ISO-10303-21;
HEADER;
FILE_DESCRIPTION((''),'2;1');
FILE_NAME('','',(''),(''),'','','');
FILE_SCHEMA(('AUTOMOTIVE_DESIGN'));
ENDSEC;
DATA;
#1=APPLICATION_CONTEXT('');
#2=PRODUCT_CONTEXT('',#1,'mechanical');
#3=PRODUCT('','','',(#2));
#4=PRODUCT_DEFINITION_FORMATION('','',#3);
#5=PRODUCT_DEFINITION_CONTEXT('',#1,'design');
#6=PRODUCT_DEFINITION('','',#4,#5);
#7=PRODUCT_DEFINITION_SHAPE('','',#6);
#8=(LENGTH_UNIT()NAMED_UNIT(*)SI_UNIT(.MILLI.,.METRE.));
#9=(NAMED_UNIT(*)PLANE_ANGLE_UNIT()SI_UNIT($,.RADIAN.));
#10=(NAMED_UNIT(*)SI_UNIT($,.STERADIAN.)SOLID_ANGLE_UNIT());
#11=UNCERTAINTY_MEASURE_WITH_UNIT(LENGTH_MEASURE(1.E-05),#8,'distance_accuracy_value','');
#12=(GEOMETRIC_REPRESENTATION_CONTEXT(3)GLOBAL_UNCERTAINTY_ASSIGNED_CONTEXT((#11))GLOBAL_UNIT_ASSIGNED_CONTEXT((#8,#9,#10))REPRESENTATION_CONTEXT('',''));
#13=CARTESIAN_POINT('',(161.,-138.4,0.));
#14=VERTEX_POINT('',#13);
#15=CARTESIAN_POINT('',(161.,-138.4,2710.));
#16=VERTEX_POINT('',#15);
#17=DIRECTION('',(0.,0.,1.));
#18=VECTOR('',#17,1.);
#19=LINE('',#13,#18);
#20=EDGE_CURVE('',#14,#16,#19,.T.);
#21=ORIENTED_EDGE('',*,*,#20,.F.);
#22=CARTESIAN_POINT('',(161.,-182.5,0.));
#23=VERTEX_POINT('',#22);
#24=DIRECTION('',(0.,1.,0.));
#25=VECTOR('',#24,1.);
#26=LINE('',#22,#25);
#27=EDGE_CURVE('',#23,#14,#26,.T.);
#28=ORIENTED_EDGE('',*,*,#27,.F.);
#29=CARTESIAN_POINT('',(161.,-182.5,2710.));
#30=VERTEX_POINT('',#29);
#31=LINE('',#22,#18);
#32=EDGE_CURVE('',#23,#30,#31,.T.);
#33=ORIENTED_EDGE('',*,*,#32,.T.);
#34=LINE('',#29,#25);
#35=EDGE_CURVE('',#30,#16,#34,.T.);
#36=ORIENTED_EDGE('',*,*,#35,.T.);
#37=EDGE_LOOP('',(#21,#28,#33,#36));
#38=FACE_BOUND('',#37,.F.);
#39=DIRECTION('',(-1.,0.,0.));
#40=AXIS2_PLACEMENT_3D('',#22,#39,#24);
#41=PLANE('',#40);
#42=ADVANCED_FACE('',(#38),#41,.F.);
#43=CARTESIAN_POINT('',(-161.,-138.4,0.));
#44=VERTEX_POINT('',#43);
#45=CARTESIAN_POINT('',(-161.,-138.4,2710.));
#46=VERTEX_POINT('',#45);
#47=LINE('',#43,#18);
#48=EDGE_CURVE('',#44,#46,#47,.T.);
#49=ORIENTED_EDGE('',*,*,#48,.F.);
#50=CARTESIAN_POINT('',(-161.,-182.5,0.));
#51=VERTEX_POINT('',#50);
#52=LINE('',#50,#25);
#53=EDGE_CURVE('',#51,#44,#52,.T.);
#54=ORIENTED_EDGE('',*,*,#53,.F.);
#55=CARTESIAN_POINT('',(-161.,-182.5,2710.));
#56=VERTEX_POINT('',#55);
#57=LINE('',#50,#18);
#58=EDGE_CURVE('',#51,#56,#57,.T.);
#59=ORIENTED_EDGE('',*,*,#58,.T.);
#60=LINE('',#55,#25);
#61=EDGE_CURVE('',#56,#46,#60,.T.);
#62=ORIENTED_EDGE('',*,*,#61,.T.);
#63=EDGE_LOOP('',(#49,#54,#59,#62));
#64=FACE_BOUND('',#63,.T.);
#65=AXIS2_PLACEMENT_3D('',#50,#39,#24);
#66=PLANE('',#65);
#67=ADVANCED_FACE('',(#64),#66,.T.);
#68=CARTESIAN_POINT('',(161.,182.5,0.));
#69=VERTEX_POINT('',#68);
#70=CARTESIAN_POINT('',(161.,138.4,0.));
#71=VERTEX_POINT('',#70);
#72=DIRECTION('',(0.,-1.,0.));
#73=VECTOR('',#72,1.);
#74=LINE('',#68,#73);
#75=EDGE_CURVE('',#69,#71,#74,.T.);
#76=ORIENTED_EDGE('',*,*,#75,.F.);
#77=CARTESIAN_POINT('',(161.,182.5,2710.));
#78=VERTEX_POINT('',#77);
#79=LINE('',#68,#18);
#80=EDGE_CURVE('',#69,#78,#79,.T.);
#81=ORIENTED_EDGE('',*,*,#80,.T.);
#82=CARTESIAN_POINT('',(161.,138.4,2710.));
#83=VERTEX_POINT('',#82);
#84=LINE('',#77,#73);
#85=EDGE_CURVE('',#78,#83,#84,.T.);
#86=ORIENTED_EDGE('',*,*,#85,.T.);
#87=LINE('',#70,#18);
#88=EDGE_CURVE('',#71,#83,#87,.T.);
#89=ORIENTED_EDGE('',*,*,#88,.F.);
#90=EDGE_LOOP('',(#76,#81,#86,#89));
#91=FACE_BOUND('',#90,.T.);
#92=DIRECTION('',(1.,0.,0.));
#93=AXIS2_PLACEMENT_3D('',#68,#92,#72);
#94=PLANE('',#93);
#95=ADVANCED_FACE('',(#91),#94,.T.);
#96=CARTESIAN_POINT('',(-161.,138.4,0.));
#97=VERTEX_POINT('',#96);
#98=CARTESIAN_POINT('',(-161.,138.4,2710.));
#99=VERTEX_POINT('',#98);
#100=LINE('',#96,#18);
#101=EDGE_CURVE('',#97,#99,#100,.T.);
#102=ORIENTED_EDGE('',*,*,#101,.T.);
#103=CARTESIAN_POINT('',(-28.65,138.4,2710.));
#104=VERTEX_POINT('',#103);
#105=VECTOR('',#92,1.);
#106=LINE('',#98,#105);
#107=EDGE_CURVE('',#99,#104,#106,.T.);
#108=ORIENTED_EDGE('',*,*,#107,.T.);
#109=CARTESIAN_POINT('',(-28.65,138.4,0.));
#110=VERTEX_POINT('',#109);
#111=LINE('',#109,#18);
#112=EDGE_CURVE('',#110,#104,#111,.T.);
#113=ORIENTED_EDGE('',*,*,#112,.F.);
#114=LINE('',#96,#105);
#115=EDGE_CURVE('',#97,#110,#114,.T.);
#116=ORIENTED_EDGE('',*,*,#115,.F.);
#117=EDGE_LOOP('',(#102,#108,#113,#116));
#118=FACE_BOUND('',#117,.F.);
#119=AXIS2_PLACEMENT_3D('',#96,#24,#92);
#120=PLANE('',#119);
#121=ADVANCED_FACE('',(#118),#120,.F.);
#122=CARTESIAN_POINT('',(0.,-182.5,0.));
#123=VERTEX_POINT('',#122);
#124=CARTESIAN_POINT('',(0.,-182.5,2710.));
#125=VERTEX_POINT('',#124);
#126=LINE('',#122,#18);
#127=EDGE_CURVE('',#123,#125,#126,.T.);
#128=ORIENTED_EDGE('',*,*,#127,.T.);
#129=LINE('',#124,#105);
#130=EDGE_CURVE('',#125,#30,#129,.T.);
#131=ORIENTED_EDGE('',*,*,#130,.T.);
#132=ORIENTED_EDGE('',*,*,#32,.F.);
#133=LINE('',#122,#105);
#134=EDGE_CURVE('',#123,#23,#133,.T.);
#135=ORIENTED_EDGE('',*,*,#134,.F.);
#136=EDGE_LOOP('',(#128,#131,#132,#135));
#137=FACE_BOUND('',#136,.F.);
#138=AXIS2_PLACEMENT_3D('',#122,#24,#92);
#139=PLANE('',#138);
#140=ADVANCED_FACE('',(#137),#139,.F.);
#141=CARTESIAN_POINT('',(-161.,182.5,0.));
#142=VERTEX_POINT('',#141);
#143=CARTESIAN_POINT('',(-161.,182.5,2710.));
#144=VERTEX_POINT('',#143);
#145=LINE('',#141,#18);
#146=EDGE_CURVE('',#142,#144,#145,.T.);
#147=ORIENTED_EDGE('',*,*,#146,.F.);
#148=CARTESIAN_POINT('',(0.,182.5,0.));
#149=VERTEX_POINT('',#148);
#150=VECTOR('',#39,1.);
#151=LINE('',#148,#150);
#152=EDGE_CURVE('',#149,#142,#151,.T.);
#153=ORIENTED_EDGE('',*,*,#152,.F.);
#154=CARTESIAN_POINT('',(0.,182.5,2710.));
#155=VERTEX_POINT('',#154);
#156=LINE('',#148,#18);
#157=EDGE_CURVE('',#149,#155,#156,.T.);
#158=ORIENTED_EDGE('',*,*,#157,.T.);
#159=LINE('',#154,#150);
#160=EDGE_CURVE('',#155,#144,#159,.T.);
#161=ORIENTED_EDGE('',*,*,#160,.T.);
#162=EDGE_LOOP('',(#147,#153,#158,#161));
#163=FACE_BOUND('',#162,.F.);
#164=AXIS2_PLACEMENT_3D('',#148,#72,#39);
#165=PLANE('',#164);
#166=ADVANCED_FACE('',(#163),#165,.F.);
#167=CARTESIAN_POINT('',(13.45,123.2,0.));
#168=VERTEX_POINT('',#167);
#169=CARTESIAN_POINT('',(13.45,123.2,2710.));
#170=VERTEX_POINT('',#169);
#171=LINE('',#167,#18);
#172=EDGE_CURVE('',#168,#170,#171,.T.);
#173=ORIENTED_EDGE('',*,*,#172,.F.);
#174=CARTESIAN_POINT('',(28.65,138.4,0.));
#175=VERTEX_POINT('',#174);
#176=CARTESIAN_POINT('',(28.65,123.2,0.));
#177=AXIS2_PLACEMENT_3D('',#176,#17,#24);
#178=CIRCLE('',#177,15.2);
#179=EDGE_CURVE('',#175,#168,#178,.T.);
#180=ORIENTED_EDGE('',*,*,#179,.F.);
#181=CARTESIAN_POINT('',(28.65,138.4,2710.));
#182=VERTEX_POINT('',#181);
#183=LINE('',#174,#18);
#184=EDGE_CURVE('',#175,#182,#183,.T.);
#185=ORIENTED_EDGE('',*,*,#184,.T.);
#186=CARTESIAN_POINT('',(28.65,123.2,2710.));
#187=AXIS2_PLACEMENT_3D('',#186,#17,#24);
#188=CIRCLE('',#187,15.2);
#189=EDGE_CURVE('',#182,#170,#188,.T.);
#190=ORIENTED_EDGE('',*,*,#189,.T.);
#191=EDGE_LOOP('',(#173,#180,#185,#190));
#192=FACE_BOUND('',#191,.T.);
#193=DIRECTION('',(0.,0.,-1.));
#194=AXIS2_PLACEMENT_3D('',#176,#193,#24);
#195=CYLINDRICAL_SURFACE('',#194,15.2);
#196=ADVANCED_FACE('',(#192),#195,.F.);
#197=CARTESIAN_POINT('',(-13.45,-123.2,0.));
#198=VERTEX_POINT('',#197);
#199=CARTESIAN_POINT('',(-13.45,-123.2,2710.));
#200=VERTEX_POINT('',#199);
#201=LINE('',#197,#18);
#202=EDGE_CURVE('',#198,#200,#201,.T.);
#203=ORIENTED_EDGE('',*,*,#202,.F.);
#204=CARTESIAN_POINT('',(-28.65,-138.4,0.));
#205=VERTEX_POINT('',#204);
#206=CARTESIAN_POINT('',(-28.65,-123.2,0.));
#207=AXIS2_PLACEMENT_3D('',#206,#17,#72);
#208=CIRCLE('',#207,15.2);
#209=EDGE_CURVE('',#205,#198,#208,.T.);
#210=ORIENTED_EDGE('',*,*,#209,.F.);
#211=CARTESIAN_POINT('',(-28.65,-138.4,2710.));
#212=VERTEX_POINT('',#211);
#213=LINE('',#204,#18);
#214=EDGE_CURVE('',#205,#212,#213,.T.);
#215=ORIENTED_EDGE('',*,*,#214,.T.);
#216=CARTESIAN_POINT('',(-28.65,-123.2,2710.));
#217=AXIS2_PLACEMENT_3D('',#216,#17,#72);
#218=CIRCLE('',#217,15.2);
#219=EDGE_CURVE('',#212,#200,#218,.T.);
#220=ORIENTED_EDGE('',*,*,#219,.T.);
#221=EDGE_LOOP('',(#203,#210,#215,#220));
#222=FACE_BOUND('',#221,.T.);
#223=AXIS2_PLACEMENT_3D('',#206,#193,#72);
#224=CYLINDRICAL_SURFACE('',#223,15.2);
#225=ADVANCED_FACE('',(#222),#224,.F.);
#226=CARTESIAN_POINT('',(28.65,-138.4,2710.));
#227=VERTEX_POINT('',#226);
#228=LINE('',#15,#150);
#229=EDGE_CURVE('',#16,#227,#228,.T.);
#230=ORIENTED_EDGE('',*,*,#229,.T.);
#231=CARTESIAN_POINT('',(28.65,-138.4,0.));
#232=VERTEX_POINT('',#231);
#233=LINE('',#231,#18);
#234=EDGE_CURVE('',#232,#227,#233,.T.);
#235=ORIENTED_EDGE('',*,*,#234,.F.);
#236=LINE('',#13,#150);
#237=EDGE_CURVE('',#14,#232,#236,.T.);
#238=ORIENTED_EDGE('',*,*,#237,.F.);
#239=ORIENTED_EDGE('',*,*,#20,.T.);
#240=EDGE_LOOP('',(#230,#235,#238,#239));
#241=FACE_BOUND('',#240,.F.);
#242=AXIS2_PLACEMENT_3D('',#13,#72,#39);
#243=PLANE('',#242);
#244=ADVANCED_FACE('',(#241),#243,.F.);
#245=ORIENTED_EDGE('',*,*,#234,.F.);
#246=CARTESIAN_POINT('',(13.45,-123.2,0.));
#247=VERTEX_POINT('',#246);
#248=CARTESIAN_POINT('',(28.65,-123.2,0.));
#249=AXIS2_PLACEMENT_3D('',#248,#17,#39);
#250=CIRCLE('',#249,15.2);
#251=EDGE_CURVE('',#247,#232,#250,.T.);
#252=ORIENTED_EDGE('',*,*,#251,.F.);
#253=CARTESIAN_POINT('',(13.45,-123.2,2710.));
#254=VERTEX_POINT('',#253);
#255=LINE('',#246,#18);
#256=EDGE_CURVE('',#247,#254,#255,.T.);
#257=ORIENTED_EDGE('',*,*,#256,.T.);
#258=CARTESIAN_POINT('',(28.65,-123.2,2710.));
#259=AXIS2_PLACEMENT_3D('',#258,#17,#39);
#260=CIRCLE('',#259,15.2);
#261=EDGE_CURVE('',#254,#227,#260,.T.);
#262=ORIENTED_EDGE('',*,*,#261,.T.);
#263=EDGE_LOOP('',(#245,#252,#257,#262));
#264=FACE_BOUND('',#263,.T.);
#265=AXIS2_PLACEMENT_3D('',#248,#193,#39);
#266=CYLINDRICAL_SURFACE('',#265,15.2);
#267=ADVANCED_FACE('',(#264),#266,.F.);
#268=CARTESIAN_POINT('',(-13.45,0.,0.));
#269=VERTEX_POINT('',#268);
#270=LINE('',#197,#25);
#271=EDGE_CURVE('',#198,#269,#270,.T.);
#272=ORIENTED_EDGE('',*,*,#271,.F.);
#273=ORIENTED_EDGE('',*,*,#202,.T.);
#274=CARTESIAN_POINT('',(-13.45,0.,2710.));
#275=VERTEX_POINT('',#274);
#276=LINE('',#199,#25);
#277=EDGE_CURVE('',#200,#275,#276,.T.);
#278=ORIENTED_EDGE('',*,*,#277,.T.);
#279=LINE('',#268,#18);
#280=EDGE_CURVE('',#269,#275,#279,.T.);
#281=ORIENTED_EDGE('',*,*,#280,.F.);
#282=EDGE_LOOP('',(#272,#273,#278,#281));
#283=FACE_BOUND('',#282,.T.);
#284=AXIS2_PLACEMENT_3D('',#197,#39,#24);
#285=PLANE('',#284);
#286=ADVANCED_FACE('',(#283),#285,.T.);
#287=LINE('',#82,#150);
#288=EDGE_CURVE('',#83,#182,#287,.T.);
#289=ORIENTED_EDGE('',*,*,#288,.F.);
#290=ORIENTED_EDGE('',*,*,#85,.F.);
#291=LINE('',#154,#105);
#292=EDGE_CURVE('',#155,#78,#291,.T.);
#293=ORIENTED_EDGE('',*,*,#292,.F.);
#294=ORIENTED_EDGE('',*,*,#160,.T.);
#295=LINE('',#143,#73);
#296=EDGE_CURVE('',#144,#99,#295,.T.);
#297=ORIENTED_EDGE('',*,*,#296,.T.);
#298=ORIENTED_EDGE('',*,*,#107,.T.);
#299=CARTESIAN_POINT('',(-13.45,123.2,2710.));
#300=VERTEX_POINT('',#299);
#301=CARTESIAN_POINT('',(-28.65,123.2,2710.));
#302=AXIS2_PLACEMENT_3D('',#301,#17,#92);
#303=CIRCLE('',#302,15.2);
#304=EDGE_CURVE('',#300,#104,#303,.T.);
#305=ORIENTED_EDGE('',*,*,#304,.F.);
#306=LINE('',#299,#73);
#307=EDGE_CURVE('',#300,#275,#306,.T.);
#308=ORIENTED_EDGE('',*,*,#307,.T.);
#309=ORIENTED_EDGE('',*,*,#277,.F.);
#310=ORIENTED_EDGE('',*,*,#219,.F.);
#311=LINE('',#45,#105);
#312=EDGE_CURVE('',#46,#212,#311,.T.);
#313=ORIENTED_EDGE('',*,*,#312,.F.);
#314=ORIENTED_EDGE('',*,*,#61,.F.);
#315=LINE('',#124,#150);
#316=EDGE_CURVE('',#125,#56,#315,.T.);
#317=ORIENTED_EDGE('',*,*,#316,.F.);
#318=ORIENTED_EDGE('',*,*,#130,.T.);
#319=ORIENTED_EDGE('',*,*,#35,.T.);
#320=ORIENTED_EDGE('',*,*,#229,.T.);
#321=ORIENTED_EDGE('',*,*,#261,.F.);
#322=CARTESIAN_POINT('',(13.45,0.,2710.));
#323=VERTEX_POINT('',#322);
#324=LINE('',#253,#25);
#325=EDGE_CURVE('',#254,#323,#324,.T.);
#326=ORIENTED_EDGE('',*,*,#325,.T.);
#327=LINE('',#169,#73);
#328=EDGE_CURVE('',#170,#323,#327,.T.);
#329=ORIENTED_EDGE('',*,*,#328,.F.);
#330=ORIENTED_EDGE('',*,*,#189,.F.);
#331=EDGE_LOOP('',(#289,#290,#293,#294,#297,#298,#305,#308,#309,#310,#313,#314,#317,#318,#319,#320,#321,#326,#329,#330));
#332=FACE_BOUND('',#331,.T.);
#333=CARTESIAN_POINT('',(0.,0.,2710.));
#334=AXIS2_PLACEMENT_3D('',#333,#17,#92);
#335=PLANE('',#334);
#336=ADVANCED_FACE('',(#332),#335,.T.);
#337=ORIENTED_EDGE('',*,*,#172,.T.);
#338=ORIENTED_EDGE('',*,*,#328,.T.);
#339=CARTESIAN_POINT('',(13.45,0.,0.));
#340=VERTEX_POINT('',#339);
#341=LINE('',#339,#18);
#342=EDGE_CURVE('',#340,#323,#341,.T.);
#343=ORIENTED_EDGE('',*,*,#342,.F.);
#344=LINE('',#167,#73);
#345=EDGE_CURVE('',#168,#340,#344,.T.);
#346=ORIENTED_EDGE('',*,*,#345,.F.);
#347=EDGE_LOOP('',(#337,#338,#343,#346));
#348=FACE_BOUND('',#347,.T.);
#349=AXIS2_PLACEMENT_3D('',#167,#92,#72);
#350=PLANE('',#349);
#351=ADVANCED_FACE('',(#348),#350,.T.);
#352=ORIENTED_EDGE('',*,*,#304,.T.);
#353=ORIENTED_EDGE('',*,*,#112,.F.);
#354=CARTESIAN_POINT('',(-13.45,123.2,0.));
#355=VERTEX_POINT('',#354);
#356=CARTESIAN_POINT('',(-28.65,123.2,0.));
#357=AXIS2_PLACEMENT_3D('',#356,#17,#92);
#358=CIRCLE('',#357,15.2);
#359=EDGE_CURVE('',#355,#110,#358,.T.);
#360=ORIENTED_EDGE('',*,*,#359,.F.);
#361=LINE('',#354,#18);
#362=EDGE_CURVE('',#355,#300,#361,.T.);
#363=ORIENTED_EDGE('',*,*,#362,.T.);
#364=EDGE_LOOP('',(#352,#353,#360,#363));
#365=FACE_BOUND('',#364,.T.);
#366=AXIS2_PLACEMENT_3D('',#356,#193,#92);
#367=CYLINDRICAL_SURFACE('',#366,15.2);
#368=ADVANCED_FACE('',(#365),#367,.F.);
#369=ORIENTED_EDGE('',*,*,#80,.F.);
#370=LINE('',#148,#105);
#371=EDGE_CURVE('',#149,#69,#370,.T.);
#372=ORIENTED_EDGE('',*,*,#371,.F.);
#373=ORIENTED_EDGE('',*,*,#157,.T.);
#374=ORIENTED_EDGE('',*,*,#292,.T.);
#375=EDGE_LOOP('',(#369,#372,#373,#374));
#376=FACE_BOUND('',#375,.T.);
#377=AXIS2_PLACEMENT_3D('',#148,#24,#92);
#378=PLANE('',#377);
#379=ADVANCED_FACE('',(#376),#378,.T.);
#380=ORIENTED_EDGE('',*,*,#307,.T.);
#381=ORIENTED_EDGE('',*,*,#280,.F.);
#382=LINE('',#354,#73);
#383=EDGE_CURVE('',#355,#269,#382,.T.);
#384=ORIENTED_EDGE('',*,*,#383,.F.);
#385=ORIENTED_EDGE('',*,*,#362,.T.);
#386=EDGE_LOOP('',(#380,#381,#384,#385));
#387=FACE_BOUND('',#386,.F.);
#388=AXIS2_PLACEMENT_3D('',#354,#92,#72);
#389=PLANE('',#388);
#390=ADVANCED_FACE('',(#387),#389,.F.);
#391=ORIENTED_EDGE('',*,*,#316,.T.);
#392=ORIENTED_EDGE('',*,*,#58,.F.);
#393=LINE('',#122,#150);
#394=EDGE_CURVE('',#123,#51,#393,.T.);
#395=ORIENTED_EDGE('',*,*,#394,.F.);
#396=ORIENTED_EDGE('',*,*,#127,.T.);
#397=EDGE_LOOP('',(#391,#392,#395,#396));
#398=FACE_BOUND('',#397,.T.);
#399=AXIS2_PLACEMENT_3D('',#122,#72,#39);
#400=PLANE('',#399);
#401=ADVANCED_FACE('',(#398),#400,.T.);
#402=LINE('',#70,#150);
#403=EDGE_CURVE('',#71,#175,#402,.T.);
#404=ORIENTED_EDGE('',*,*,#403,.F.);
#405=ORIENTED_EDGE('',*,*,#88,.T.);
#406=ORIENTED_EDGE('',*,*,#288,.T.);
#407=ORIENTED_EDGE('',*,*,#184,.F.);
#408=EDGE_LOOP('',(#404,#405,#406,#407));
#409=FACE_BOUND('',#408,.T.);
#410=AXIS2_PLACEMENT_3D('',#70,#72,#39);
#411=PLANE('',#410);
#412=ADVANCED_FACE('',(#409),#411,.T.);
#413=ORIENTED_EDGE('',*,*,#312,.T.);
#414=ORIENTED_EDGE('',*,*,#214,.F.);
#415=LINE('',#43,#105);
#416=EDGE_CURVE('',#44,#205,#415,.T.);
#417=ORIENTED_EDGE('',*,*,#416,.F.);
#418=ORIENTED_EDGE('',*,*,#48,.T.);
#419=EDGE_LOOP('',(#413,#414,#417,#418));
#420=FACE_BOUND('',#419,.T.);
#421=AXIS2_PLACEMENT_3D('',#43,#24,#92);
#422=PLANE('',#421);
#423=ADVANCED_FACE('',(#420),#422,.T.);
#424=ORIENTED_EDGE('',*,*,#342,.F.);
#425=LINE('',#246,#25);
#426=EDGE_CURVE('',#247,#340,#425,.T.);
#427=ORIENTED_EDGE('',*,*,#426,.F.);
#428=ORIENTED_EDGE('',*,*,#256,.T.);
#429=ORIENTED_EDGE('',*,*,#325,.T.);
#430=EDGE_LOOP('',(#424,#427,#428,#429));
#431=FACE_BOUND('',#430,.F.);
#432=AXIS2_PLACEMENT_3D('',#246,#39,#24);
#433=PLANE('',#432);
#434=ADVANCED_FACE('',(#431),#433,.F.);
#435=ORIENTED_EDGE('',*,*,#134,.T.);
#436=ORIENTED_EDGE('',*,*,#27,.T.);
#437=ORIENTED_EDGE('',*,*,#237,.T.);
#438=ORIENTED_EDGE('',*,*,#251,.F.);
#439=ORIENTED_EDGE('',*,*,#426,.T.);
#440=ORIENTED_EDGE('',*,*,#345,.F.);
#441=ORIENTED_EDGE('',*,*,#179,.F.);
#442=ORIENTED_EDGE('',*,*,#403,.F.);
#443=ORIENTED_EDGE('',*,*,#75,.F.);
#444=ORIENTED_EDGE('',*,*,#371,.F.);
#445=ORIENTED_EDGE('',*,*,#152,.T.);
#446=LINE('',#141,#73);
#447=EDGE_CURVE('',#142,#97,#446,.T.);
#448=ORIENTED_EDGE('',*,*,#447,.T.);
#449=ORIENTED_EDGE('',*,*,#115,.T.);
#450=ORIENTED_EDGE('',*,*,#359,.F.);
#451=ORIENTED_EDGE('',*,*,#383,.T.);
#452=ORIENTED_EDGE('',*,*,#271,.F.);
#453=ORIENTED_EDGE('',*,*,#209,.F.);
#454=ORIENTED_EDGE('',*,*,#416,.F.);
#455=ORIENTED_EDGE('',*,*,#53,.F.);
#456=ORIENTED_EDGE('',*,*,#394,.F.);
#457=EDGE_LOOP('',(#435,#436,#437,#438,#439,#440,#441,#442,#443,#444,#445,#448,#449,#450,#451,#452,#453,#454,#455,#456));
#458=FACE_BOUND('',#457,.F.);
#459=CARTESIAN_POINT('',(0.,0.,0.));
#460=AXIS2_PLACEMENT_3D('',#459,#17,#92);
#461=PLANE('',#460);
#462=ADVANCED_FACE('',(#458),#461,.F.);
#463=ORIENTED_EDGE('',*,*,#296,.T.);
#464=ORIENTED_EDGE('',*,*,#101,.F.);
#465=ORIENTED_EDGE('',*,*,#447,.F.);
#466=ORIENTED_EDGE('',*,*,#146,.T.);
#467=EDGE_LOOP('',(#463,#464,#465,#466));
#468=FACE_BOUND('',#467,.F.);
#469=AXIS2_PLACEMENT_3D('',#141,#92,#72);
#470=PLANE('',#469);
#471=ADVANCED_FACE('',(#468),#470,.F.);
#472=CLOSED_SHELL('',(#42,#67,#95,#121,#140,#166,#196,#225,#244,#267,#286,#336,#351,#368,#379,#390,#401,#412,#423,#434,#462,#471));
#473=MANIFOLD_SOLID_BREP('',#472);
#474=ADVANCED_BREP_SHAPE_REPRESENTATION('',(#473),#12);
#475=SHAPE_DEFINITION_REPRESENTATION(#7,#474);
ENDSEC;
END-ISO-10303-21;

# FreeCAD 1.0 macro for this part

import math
import FreeCAD as App
import Part
import Sketcher
Q = App.Units.Quantity

doc = App.newDocument("Part")
body = doc.addObject("PartDesign::Body", "Body")

# Sketch on XY plane
sketch1 = body.newObject("Sketcher::SketchObject", "Sketch")
sketch1.AttachmentSupport = (doc.getObject("XY_Plane"), [""])
sketch1.MapMode = "FlatFace"
sketch1.addGeometry(Part.LineSegment(App.Vector(-161, -138, 0), App.Vector(-161, -182, 0)), False)
sketch1.addGeometry(Part.LineSegment(App.Vector(-161, -182, 0), App.Vector(161, -182, 0)), False)
sketch1.addGeometry(Part.LineSegment(App.Vector(161, -182, 0), App.Vector(161, -138, 0)), False)
sketch1.addGeometry(Part.LineSegment(App.Vector(161, -138, 0), App.Vector(29, -138, 0)), False)
sketch1.addGeometry(Part.ArcOfCircle(Part.Circle(App.Vector(29, -123, 0), App.Vector(0, 0, 1), 15), math.radians(180), math.radians(270)), False)
sketch1.addGeometry(Part.LineSegment(App.Vector(13, -123, 0), App.Vector(13, 123, 0)), False)
sketch1.addGeometry(Part.ArcOfCircle(Part.Circle(App.Vector(29, 123, 0), App.Vector(0, 0, 1), 15), math.radians(90), math.radians(180)), False)
sketch1.addGeometry(Part.LineSegment(App.Vector(29, 138, 0), App.Vector(161, 138, 0)), False)
sketch1.addGeometry(Part.LineSegment(App.Vector(161, 138, 0), App.Vector(161, 182, 0)), False)
sketch1.addGeometry(Part.LineSegment(App.Vector(161, 182, 0), App.Vector(-161, 182, 0)), False)
sketch1.addGeometry(Part.LineSegment(App.Vector(-161, 182, 0), App.Vector(-161, 138, 0)), False)
sketch1.addGeometry(Part.LineSegment(App.Vector(-161, 138, 0), App.Vector(-29, 138, 0)), False)
sketch1.addGeometry(Part.ArcOfCircle(Part.Circle(App.Vector(-29, 123, 0), App.Vector(0, 0, 1), 15), math.radians(0), math.radians(90)), False)
sketch1.addGeometry(Part.LineSegment(App.Vector(-13, 123, 0), App.Vector(-13, -123, 0)), False)
sketch1.addGeometry(Part.ArcOfCircle(Part.Circle(App.Vector(-29, -123, 0), App.Vector(0, 0, 1), 15), math.radians(-90), math.radians(0)), False)
sketch1.addGeometry(Part.LineSegment(App.Vector(-29, -138, 0), App.Vector(-161, -138, 0)), False)
sketch1.addConstraint(Sketcher.Constraint("Coincident", 0, 2, 1, 1))
sketch1.addConstraint(Sketcher.Constraint("Coincident", 1, 2, 2, 1))
sketch1.addConstraint(Sketcher.Constraint("Coincident", 2, 2, 3, 1))
sketch1.addConstraint(Sketcher.Constraint("Tangent", 3, 2, 4, 2))
sketch1.addConstraint(Sketcher.Constraint("Tangent", 4, 1, 5, 1))
sketch1.addConstraint(Sketcher.Constraint("Tangent", 5, 2, 6, 2))
sketch1.addConstraint(Sketcher.Constraint("Tangent", 6, 1, 7, 1))
sketch1.addConstraint(Sketcher.Constraint("Coincident", 7, 2, 8, 1))
sketch1.addConstraint(Sketcher.Constraint("Coincident", 8, 2, 9, 1))
sketch1.addConstraint(Sketcher.Constraint("Coincident", 9, 2, 10, 1))
sketch1.addConstraint(Sketcher.Constraint("Coincident", 10, 2, 11, 1))
sketch1.addConstraint(Sketcher.Constraint("Tangent", 11, 2, 12, 2))
sketch1.addConstraint(Sketcher.Constraint("Tangent", 12, 1, 13, 1))
sketch1.addConstraint(Sketcher.Constraint("Tangent", 13, 2, 14, 2))
sketch1.addConstraint(Sketcher.Constraint("Tangent", 14, 1, 15, 1))
sketch1.addConstraint(Sketcher.Constraint("Coincident", 15, 2, 0, 1))
sketch1.addConstraint(Sketcher.Constraint("Vertical", 0))
sketch1.addConstraint(Sketcher.Constraint("Horizontal", 1))
sketch1.addConstraint(Sketcher.Constraint("Vertical", 2))
sketch1.addConstraint(Sketcher.Constraint("Horizontal", 3))
sketch1.addConstraint(Sketcher.Constraint("Vertical", 5))
sketch1.addConstraint(Sketcher.Constraint("Horizontal", 7))
sketch1.addConstraint(Sketcher.Constraint("Vertical", 8))
sketch1.addConstraint(Sketcher.Constraint("Horizontal", 9))
sketch1.addConstraint(Sketcher.Constraint("Vertical", 10))
sketch1.addConstraint(Sketcher.Constraint("Horizontal", 11))
sketch1.addConstraint(Sketcher.Constraint("Vertical", 13))
sketch1.addConstraint(Sketcher.Constraint("Horizontal", 15))
sketch1.addConstraint(Sketcher.Constraint("Equal", 4, 6))
sketch1.addConstraint(Sketcher.Constraint("Equal", 6, 12))
sketch1.addConstraint(Sketcher.Constraint("Equal", 12, 14))
sketch1.addConstraint(Sketcher.Constraint("Symmetric", 4, 3, 12, 3, -1, 1))
sketch1.addConstraint(Sketcher.Constraint("Symmetric", 0, 2, 8, 2, -1, 1))
sketch1.addConstraint(Sketcher.Constraint("Symmetric", 7, 2, 10, 2, -2))
sketch1.addConstraint(Sketcher.Constraint("Symmetric", 2, 2, 15, 2, -2))
sketch1.addConstraint(Sketcher.Constraint("Radius", 4, Q("15.2 mm")))
sketch1.addConstraint(Sketcher.Constraint("DistanceY", 0, 2, 0, 1, Q("44.1 mm")))
sketch1.addConstraint(Sketcher.Constraint("DistanceX", 0, 2, -1, 1, Q("161 mm")))
sketch1.addConstraint(Sketcher.Constraint("DistanceY", 0, 2, -1, 1, Q("182.5 mm")))
sketch1.addConstraint(Sketcher.Constraint("DistanceX", -1, 1, 4, 1, Q("13.45 mm")))
pad1 = body.newObject("PartDesign::Pad", "Pad")
pad1.Profile = sketch1
pad1.Length = 2710

doc.recompute()
